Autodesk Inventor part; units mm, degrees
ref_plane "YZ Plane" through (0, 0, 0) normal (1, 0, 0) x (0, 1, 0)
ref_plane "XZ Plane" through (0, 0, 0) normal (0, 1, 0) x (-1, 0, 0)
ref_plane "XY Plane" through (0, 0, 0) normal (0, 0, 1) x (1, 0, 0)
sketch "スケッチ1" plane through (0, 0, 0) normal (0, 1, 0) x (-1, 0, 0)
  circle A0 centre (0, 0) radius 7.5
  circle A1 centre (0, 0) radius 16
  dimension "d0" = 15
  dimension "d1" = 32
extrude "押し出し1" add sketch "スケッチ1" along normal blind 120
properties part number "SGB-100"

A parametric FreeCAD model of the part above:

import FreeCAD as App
import Part
import Sketcher

V = App.Vector
Q = App.Units.Quantity

doc = App.newDocument("Part")
params = doc.addObject("Spreadsheet::Sheet", "Params")
for row, (alias, value) in enumerate([
    ("sketch1_diameter", "32 mm"),
    ("sketch1_diameter2", "15 mm"),
    ("pad1_length", "120 mm"),
], start=1):
    params.set(f"A{row}", alias)
    params.set(f"B{row}", "=" + value)
    params.setAlias(f"B{row}", alias)

body = doc.addObject("PartDesign::Body", "Body")

sketch1 = body.newObject("Sketcher::SketchObject", "Sketch")
sketch1.AttachmentSupport = (doc.getObject("XZ_Plane"), [""])
sketch1.MapMode = "FlatFace"
sketch1.addGeometry([
    Part.Circle(V(0, 0, 0), V(0, 0, 1), 16),
    Part.Circle(V(0, 0, 0), V(0, 0, 1), 8),
], False)
sketch1.addConstraint([
    Sketcher.Constraint("Coincident", 0, 3, -1, 1),
    Sketcher.Constraint("Coincident", 1, 3, -1, 1),
    Sketcher.Constraint("Diameter", 0, Q("32 mm")),
    Sketcher.Constraint("Diameter", 1, Q("15 mm")),
])
sketch1.setExpression("Constraints[2]", "Params.sketch1_diameter")
sketch1.setExpression("Constraints[3]", "Params.sketch1_diameter2")
pad1 = body.newObject("PartDesign::Pad", "Pad")
pad1.Profile = sketch1
pad1.setExpression("Length", "Params.pad1_length")
pad1.Reversed = True

doc.recompute()
